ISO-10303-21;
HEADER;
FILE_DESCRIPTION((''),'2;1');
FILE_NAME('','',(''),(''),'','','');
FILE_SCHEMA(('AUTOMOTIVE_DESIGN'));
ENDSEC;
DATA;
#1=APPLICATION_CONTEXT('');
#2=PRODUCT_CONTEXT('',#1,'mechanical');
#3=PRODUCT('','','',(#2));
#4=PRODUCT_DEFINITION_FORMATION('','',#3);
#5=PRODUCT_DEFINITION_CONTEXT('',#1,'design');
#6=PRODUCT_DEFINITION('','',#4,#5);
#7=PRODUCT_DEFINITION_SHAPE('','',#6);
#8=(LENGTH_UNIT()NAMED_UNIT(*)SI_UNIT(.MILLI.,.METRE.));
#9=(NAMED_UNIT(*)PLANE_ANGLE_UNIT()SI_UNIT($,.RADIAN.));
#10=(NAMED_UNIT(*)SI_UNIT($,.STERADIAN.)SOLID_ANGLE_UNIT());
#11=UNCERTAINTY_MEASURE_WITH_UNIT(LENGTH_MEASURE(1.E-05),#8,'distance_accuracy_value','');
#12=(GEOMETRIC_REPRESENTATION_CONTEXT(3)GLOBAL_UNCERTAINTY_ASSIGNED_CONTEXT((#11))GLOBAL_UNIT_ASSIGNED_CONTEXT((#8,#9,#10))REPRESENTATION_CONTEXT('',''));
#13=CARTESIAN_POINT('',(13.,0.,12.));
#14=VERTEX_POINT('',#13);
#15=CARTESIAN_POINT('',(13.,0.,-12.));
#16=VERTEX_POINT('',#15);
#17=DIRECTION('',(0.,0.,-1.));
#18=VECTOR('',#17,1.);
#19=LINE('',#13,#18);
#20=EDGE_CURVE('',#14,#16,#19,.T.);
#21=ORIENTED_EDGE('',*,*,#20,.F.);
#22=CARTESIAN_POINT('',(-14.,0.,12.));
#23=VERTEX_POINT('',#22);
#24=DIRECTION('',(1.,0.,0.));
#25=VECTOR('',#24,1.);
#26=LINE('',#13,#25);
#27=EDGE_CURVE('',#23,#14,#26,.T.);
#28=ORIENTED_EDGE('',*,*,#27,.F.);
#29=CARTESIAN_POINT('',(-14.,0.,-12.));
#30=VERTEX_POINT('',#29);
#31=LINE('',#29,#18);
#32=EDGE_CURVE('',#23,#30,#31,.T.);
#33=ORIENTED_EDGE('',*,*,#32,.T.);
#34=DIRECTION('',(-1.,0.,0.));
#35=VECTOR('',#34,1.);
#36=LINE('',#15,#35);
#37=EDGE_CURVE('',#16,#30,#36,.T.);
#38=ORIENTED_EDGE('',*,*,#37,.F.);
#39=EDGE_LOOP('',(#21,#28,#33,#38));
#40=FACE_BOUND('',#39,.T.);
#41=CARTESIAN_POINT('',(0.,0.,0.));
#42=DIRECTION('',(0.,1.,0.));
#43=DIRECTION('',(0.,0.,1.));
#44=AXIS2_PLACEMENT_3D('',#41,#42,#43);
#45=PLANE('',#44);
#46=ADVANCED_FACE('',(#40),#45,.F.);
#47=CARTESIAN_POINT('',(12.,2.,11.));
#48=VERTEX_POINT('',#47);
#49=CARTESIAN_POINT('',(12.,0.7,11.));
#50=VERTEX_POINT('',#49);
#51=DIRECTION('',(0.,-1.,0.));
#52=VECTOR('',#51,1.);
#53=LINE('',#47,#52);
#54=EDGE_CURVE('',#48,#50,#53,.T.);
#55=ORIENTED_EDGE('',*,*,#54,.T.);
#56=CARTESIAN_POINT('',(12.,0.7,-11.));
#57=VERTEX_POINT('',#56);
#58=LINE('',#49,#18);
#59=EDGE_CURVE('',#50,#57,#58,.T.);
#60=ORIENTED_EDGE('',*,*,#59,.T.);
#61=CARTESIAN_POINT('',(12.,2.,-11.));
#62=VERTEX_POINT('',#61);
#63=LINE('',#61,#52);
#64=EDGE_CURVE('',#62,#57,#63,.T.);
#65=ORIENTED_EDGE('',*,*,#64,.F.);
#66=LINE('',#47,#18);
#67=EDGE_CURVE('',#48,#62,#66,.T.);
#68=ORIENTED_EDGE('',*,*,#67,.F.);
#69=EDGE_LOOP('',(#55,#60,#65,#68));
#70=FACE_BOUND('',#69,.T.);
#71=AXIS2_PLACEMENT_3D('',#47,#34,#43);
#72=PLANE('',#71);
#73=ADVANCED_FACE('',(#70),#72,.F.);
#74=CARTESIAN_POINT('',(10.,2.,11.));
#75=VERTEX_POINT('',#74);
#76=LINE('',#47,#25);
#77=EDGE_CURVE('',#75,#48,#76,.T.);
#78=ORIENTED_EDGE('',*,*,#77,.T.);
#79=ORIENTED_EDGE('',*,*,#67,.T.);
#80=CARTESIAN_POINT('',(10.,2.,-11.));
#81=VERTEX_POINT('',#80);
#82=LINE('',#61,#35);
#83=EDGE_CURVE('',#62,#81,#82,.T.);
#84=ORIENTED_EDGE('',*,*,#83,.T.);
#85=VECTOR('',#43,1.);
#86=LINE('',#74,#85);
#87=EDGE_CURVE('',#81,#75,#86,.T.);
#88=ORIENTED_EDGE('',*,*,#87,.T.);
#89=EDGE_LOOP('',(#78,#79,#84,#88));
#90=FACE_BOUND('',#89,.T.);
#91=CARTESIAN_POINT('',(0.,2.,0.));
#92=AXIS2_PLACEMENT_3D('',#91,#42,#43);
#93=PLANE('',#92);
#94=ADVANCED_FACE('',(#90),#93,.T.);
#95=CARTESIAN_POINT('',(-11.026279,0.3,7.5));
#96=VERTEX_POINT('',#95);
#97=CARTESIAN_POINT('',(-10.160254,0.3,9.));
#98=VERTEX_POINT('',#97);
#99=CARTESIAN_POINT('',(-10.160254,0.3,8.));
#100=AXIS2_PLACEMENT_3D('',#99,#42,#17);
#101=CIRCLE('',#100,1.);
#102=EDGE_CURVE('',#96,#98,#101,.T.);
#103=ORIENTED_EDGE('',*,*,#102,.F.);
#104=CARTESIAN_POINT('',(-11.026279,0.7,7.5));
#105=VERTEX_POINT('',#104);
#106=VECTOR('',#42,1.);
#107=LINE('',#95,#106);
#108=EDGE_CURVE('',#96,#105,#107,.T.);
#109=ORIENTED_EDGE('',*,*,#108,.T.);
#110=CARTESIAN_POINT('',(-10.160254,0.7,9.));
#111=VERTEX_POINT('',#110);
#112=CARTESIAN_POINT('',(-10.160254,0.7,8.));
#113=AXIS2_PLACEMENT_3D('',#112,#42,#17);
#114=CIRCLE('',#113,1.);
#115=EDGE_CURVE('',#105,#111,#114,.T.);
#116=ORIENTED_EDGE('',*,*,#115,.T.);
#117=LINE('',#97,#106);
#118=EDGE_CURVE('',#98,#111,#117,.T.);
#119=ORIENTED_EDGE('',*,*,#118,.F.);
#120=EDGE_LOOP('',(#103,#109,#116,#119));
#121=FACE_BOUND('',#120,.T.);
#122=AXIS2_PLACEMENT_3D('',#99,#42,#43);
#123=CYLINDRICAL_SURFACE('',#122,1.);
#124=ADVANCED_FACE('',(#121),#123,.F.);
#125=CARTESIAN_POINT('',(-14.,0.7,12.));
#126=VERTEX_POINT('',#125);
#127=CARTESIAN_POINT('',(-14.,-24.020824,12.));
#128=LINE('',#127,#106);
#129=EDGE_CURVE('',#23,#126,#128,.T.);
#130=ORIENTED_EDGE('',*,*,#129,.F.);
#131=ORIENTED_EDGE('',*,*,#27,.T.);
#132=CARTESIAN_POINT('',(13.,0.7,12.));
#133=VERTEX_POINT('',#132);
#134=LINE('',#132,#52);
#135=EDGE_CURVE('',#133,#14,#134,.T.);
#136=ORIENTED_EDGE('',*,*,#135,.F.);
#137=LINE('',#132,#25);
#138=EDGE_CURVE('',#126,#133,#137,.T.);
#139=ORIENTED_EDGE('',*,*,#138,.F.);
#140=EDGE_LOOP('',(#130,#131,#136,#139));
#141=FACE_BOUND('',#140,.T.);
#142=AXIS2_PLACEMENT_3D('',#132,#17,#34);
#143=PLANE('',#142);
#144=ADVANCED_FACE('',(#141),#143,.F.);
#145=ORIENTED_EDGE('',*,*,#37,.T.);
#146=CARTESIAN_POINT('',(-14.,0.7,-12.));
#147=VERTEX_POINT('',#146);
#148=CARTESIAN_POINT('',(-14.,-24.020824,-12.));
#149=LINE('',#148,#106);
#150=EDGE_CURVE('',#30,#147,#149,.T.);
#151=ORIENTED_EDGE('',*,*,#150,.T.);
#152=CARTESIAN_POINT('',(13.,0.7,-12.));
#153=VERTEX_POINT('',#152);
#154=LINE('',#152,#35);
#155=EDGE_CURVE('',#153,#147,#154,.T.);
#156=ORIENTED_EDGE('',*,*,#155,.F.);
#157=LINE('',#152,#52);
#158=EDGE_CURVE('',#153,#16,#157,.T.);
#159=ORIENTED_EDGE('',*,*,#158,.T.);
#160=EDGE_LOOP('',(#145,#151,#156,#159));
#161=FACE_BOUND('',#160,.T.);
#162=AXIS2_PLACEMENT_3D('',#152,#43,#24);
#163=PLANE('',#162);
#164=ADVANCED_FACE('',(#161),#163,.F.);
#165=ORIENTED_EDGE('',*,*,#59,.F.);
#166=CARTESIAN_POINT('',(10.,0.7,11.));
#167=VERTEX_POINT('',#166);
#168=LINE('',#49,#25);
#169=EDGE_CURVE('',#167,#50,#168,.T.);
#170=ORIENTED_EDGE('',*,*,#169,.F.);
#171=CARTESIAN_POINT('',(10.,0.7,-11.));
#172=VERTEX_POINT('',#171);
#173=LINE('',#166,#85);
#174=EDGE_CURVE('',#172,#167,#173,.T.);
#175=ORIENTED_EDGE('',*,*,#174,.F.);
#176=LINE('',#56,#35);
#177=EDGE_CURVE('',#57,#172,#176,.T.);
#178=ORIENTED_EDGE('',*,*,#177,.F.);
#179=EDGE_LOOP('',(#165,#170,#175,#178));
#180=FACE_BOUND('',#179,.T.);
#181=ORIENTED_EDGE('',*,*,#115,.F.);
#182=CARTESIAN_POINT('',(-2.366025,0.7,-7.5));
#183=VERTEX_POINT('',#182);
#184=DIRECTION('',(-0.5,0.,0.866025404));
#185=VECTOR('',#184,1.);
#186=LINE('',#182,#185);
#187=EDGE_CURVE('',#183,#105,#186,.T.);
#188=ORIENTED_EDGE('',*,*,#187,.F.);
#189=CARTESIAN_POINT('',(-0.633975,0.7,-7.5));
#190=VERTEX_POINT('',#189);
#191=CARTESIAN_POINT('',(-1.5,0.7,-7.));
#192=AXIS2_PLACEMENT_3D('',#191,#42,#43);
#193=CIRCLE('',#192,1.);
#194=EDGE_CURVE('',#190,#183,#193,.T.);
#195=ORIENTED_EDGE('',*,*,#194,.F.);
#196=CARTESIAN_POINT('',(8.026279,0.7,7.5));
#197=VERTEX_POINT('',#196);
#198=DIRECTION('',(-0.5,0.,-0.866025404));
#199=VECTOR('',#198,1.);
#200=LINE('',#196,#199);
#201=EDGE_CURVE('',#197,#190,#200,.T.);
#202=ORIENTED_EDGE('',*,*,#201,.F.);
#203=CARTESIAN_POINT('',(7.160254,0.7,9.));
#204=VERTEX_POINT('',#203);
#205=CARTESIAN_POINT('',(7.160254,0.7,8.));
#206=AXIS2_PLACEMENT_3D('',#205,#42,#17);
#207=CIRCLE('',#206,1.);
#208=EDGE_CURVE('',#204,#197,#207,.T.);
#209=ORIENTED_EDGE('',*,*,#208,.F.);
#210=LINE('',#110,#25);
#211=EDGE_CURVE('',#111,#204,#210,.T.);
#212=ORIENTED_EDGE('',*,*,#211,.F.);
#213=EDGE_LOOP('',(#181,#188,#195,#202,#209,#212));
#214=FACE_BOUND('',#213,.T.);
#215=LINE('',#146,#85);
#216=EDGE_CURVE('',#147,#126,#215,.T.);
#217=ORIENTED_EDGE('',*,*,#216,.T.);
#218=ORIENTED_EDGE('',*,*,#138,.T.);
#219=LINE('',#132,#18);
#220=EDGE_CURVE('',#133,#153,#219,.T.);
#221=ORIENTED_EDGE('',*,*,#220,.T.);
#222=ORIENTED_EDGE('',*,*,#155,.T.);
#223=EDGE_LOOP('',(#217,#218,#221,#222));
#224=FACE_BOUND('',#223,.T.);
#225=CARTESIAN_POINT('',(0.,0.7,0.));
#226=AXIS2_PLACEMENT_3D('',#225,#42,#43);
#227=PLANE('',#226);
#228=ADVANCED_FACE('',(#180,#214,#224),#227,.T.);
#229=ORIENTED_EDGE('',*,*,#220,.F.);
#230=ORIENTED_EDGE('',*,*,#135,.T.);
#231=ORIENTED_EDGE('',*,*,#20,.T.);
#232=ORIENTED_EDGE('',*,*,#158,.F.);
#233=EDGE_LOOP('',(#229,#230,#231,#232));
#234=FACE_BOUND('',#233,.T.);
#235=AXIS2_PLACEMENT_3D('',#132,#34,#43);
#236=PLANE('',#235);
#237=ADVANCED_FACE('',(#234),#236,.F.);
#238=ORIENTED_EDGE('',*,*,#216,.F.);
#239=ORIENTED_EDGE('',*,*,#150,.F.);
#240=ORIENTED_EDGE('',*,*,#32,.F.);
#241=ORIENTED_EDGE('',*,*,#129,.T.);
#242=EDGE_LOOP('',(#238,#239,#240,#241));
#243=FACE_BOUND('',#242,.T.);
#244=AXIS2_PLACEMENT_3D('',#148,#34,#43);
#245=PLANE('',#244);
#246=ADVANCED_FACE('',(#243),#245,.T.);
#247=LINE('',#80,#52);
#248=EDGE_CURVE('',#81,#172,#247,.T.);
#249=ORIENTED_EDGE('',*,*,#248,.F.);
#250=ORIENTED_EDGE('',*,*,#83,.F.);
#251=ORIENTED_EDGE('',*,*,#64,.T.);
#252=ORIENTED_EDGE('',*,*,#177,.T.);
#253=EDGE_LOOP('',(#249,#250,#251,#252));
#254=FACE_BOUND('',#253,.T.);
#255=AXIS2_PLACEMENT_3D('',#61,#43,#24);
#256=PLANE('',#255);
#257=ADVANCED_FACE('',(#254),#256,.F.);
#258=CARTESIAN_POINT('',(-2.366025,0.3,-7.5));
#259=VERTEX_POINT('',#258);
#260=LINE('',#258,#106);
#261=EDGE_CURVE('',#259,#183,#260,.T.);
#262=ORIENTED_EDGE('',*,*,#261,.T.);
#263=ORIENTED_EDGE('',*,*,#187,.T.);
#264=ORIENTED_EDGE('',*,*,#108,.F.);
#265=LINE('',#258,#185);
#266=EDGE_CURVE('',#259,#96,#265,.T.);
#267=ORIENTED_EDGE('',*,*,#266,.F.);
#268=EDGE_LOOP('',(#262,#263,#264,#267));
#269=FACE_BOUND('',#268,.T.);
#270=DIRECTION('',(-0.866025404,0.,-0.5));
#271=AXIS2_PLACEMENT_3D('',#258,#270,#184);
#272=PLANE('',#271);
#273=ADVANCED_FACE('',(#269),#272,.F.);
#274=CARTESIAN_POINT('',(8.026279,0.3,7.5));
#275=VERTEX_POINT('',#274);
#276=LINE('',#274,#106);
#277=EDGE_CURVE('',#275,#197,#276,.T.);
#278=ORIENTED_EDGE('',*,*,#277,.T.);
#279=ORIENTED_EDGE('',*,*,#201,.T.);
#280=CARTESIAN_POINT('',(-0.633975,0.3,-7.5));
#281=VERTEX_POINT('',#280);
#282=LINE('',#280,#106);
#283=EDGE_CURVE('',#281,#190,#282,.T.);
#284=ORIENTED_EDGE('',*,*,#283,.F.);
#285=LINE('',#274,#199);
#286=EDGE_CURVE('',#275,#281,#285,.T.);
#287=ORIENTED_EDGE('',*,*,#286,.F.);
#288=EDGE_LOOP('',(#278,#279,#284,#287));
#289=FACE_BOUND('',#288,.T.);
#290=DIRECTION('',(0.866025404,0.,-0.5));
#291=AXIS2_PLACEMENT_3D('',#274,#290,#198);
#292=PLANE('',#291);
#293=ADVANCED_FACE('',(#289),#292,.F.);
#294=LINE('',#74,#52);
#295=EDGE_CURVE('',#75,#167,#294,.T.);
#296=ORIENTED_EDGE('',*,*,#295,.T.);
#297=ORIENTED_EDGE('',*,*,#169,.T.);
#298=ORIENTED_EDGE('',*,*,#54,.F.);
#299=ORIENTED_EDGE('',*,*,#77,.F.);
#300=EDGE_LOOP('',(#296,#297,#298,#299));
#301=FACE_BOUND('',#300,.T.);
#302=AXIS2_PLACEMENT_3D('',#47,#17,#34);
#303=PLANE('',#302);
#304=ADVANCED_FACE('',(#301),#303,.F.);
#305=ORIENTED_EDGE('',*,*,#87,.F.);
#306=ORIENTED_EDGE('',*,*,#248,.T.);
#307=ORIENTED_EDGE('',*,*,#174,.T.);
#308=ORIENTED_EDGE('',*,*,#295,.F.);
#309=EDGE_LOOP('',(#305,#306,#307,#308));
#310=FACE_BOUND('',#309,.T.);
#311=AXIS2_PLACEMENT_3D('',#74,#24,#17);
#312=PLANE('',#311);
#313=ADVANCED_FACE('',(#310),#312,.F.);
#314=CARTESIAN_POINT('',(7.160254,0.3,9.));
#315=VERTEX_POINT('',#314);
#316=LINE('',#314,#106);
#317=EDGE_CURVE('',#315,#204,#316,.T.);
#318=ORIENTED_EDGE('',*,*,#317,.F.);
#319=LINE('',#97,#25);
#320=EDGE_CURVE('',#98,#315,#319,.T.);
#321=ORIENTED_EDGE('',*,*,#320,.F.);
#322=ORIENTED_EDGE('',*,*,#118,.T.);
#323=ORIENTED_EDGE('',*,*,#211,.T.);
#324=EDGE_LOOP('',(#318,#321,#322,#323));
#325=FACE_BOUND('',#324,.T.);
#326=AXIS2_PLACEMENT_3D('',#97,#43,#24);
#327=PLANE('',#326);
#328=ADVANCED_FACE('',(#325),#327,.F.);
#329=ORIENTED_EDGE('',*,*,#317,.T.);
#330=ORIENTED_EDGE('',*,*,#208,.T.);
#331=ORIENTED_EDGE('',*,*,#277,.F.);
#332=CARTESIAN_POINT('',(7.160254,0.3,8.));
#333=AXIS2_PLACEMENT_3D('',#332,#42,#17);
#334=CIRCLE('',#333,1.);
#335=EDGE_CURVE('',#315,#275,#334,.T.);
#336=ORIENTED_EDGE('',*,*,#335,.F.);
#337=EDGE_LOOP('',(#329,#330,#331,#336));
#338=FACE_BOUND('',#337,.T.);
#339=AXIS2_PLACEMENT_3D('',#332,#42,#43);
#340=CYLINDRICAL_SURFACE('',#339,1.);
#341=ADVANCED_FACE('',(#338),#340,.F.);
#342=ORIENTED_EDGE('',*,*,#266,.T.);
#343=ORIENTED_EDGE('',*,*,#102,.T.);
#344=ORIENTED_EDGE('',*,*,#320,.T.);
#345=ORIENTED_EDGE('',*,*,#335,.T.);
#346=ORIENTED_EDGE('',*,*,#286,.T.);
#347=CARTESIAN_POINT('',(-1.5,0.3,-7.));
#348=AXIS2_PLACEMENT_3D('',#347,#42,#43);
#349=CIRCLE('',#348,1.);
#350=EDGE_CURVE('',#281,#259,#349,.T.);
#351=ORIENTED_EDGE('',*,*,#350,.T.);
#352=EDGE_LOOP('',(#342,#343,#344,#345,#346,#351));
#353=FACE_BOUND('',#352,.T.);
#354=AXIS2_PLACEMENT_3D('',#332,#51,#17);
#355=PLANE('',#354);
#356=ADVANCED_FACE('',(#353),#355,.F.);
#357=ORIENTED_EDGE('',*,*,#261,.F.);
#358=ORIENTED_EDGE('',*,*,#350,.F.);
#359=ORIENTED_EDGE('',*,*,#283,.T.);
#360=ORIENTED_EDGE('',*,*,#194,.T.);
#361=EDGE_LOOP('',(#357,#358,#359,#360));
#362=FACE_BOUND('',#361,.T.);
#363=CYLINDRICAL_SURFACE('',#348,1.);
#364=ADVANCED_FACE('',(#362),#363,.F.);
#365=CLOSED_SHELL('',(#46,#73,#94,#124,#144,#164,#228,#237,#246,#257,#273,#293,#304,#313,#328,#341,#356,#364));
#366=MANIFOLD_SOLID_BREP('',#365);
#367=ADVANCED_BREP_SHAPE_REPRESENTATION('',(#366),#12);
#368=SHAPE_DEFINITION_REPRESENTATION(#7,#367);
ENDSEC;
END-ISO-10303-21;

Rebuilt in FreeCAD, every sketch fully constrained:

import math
import FreeCAD as App
import Part
import Sketcher

V = App.Vector
Q = App.Units.Quantity

doc = App.newDocument("Part")
params = doc.addObject("Spreadsheet::Sheet", "Params")
for row, (alias, value) in enumerate([
    ("sketch1_width", "26 mm"),
    ("sketch1_height", "24 mm"),
    ("pad1_length", "0.7 mm"),
    ("sketch2_width", "2 mm"),
    ("sketch2_height", "22 mm"),
    ("pad2_length", "1.3 mm"),
    ("sketch3_radius", "1 mm"),
    ("pocket1_length", "0.4 mm"),
    ("sketch4_width", "1 mm"),
    ("sketch4_height", "24 mm"),
    ("pad3_length", "0.7 mm"),
], start=1):
    params.set(f"A{row}", alias)
    params.set(f"B{row}", "=" + value)
    params.setAlias(f"B{row}", alias)

body = doc.addObject("PartDesign::Body", "Body")

# Sketch on XZ plane
sketch1 = body.newObject("Sketcher::SketchObject", "Sketch")
sketch1.AttachmentSupport = (doc.getObject("XZ_Plane"), [""])
sketch1.MapMode = "FlatFace"
sketch1.addGeometry([
    Part.LineSegment(V(-13, -12, 0), V(-13, 12, 0)),
    Part.LineSegment(V(-13, 12, 0), V(13, 12, 0)),
    Part.LineSegment(V(13, 12, 0), V(13, -12, 0)),
    Part.LineSegment(V(13, -12, 0), V(-13, -12, 0)),
], False)
sketch1.addConstraint([
    Sketcher.Constraint("Coincident", 0, 2, 1, 1),
    Sketcher.Constraint("Coincident", 1, 2, 2, 1),
    Sketcher.Constraint("Coincident", 2, 2, 3, 1),
    Sketcher.Constraint("Coincident", 3, 2, 0, 1),
    Sketcher.Constraint("Vertical", 0),
    Sketcher.Constraint("Horizontal", 1),
    Sketcher.Constraint("Vertical", 2),
    Sketcher.Constraint("Horizontal", 3),
    Sketcher.Constraint("Symmetric", 0, 2, 2, 2, -1, 1),
    Sketcher.Constraint("DistanceX", 1, 1, 1, 2, 26.0),
    Sketcher.Constraint("DistanceY", 0, 1, 0, 2, 24.0),
])
sketch1.setExpression("Constraints[9]", "Params.sketch1_width")
sketch1.setExpression("Constraints[10]", "Params.sketch1_height")
pad1 = body.newObject("PartDesign::Pad", "Pad")
pad1.Profile = sketch1
pad1.setExpression("Length", "Params.pad1_length")
pad1.Reversed = True

# Sketch on XZ plane
sketch2 = body.newObject("Sketcher::SketchObject", "Sketch001")
sketch2.AttachmentSupport = (doc.getObject("XZ_Plane"), [""])
sketch2.MapMode = "FlatFace"
sketch2.AttachmentOffset = App.Placement(V(0, 0, -0.7), App.Rotation())
sketch2.addGeometry([
    Part.LineSegment(V(10, -11, 0), V(10, 11, 0)),
    Part.LineSegment(V(10, 11, 0), V(12, 11, 0)),
    Part.LineSegment(V(12, 11, 0), V(12, -11, 0)),
    Part.LineSegment(V(12, -11, 0), V(10, -11, 0)),
], False)
sketch2.addConstraint([
    Sketcher.Constraint("Coincident", 0, 2, 1, 1),
    Sketcher.Constraint("Coincident", 1, 2, 2, 1),
    Sketcher.Constraint("Coincident", 2, 2, 3, 1),
    Sketcher.Constraint("Coincident", 3, 2, 0, 1),
    Sketcher.Constraint("Vertical", 0),
    Sketcher.Constraint("Horizontal", 1),
    Sketcher.Constraint("Vertical", 2),
    Sketcher.Constraint("Horizontal", 3),
    Sketcher.Constraint("DistanceX", 1, 1, 1, 2, 2.0),
    Sketcher.Constraint("DistanceY", 0, 1, 0, 2, 22.0),
    Sketcher.Constraint("DistanceX", -1, 1, 0, 2, 10.0),
    Sketcher.Constraint("DistanceY", -1, 1, 0, 2, 11.0),
])
sketch2.setExpression("Constraints[8]", "Params.sketch2_width")
sketch2.setExpression("Constraints[9]", "Params.sketch2_height")
pad2 = body.newObject("PartDesign::Pad", "Pad001")
pad2.Profile = sketch2
pad2.setExpression("Length", "Params.pad2_length")
pad2.Reversed = True

# Sketch on XZ plane
sketch3 = body.newObject("Sketcher::SketchObject", "Sketch002")
sketch3.AttachmentSupport = (doc.getObject("XZ_Plane"), [""])
sketch3.MapMode = "FlatFace"
sketch3.AttachmentOffset = App.Placement(V(0, 0, -0.7), App.Rotation())
sketch3.addGeometry([
    Part.LineSegment(V(-2.4, -7.5, 0), V(-11, 7.5, 0)),  # 0
    Part.ArcOfCircle(Part.Circle(V(-10.2, 8, 0), V(0, 0, 1), 1), math.radians(90), math.radians(210)),  # 1
    Part.LineSegment(V(-10.2, 9, 0), V(7.2, 9, 0)),  # 2
    Part.ArcOfCircle(Part.Circle(V(7.2, 8, 0), V(0, 0, 1), 1), math.radians(-30), math.radians(90)),  # 3
    Part.LineSegment(V(8, 7.5, 0), V(-0.6, -7.5, 0)),  # 4
    Part.ArcOfCircle(Part.Circle(V(-1.5, -7, 0), V(0, 0, 1), 1), math.radians(-150), math.radians(-30)),  # 5
], False)
sketch3.addConstraint([
    Sketcher.Constraint("Tangent", 0, 2, 1, 2),
    Sketcher.Constraint("Tangent", 1, 1, 2, 1),
    Sketcher.Constraint("Tangent", 2, 2, 3, 2),
    Sketcher.Constraint("Tangent", 3, 1, 4, 1),
    Sketcher.Constraint("Tangent", 4, 2, 5, 2),
    Sketcher.Constraint("Tangent", 5, 1, 0, 1),
    Sketcher.Constraint("Horizontal", 2),
    Sketcher.Constraint("Equal", 1, 3),
    Sketcher.Constraint("Equal", 3, 5),
    Sketcher.Constraint("Horizontal", 0, 2, 3, 1),
    Sketcher.Constraint("Radius", 1, 1.0),
    Sketcher.Constraint("Angle", 0, Q("120 deg")),
    Sketcher.Constraint("DistanceY", -1, 1, 1, 3, 8.0),
    Sketcher.Constraint("DistanceY", 5, 3, -1, 1, 7.0),
    Sketcher.Constraint("DistanceX", 5, 3, -1, 1, 1.5),
])
sketch3.setExpression("Constraints[10]", "Params.sketch3_radius")
pocket1 = body.newObject("PartDesign::Pocket", "Pocket")
pocket1.Profile = sketch3
pocket1.setExpression("Length", "Params.pocket1_length")
pocket1.Reversed = True

# Sketch on XZ plane
sketch4 = body.newObject("Sketcher::SketchObject", "Sketch003")
sketch4.AttachmentSupport = (doc.getObject("XZ_Plane"), [""])
sketch4.MapMode = "FlatFace"
sketch4.AttachmentOffset = App.Placement(V(0, 0, -0.7), App.Rotation())
sketch4.addGeometry([
    Part.LineSegment(V(-14, -12, 0), V(-14, 12, 0)),
    Part.LineSegment(V(-14, 12, 0), V(-13, 12, 0)),
    Part.LineSegment(V(-13, 12, 0), V(-13, -12, 0)),
    Part.LineSegment(V(-13, -12, 0), V(-14, -12, 0)),
], False)
sketch4.addConstraint([
    Sketcher.Constraint("Coincident", 0, 2, 1, 1),
    Sketcher.Constraint("Coincident", 1, 2, 2, 1),
    Sketcher.Constraint("Coincident", 2, 2, 3, 1),
    Sketcher.Constraint("Coincident", 3, 2, 0, 1),
    Sketcher.Constraint("Vertical", 0),
    Sketcher.Constraint("Horizontal", 1),
    Sketcher.Constraint("Vertical", 2),
    Sketcher.Constraint("Horizontal", 3),
    Sketcher.Constraint("DistanceX", 1, 1, 1, 2, 1.0),
    Sketcher.Constraint("DistanceY", 0, 1, 0, 2, 24.0),
    Sketcher.Constraint("DistanceX", 0, 2, -1, 1, 14.0),
    Sketcher.Constraint("DistanceY", -1, 1, 0, 2, 12.0),
])
sketch4.setExpression("Constraints[8]", "Params.sketch4_width")
sketch4.setExpression("Constraints[9]", "Params.sketch4_height")
pad3 = body.newObject("PartDesign::Pad", "Pad002")
pad3.Profile = sketch4
pad3.setExpression("Length", "Params.pad3_length")

doc.recompute()
